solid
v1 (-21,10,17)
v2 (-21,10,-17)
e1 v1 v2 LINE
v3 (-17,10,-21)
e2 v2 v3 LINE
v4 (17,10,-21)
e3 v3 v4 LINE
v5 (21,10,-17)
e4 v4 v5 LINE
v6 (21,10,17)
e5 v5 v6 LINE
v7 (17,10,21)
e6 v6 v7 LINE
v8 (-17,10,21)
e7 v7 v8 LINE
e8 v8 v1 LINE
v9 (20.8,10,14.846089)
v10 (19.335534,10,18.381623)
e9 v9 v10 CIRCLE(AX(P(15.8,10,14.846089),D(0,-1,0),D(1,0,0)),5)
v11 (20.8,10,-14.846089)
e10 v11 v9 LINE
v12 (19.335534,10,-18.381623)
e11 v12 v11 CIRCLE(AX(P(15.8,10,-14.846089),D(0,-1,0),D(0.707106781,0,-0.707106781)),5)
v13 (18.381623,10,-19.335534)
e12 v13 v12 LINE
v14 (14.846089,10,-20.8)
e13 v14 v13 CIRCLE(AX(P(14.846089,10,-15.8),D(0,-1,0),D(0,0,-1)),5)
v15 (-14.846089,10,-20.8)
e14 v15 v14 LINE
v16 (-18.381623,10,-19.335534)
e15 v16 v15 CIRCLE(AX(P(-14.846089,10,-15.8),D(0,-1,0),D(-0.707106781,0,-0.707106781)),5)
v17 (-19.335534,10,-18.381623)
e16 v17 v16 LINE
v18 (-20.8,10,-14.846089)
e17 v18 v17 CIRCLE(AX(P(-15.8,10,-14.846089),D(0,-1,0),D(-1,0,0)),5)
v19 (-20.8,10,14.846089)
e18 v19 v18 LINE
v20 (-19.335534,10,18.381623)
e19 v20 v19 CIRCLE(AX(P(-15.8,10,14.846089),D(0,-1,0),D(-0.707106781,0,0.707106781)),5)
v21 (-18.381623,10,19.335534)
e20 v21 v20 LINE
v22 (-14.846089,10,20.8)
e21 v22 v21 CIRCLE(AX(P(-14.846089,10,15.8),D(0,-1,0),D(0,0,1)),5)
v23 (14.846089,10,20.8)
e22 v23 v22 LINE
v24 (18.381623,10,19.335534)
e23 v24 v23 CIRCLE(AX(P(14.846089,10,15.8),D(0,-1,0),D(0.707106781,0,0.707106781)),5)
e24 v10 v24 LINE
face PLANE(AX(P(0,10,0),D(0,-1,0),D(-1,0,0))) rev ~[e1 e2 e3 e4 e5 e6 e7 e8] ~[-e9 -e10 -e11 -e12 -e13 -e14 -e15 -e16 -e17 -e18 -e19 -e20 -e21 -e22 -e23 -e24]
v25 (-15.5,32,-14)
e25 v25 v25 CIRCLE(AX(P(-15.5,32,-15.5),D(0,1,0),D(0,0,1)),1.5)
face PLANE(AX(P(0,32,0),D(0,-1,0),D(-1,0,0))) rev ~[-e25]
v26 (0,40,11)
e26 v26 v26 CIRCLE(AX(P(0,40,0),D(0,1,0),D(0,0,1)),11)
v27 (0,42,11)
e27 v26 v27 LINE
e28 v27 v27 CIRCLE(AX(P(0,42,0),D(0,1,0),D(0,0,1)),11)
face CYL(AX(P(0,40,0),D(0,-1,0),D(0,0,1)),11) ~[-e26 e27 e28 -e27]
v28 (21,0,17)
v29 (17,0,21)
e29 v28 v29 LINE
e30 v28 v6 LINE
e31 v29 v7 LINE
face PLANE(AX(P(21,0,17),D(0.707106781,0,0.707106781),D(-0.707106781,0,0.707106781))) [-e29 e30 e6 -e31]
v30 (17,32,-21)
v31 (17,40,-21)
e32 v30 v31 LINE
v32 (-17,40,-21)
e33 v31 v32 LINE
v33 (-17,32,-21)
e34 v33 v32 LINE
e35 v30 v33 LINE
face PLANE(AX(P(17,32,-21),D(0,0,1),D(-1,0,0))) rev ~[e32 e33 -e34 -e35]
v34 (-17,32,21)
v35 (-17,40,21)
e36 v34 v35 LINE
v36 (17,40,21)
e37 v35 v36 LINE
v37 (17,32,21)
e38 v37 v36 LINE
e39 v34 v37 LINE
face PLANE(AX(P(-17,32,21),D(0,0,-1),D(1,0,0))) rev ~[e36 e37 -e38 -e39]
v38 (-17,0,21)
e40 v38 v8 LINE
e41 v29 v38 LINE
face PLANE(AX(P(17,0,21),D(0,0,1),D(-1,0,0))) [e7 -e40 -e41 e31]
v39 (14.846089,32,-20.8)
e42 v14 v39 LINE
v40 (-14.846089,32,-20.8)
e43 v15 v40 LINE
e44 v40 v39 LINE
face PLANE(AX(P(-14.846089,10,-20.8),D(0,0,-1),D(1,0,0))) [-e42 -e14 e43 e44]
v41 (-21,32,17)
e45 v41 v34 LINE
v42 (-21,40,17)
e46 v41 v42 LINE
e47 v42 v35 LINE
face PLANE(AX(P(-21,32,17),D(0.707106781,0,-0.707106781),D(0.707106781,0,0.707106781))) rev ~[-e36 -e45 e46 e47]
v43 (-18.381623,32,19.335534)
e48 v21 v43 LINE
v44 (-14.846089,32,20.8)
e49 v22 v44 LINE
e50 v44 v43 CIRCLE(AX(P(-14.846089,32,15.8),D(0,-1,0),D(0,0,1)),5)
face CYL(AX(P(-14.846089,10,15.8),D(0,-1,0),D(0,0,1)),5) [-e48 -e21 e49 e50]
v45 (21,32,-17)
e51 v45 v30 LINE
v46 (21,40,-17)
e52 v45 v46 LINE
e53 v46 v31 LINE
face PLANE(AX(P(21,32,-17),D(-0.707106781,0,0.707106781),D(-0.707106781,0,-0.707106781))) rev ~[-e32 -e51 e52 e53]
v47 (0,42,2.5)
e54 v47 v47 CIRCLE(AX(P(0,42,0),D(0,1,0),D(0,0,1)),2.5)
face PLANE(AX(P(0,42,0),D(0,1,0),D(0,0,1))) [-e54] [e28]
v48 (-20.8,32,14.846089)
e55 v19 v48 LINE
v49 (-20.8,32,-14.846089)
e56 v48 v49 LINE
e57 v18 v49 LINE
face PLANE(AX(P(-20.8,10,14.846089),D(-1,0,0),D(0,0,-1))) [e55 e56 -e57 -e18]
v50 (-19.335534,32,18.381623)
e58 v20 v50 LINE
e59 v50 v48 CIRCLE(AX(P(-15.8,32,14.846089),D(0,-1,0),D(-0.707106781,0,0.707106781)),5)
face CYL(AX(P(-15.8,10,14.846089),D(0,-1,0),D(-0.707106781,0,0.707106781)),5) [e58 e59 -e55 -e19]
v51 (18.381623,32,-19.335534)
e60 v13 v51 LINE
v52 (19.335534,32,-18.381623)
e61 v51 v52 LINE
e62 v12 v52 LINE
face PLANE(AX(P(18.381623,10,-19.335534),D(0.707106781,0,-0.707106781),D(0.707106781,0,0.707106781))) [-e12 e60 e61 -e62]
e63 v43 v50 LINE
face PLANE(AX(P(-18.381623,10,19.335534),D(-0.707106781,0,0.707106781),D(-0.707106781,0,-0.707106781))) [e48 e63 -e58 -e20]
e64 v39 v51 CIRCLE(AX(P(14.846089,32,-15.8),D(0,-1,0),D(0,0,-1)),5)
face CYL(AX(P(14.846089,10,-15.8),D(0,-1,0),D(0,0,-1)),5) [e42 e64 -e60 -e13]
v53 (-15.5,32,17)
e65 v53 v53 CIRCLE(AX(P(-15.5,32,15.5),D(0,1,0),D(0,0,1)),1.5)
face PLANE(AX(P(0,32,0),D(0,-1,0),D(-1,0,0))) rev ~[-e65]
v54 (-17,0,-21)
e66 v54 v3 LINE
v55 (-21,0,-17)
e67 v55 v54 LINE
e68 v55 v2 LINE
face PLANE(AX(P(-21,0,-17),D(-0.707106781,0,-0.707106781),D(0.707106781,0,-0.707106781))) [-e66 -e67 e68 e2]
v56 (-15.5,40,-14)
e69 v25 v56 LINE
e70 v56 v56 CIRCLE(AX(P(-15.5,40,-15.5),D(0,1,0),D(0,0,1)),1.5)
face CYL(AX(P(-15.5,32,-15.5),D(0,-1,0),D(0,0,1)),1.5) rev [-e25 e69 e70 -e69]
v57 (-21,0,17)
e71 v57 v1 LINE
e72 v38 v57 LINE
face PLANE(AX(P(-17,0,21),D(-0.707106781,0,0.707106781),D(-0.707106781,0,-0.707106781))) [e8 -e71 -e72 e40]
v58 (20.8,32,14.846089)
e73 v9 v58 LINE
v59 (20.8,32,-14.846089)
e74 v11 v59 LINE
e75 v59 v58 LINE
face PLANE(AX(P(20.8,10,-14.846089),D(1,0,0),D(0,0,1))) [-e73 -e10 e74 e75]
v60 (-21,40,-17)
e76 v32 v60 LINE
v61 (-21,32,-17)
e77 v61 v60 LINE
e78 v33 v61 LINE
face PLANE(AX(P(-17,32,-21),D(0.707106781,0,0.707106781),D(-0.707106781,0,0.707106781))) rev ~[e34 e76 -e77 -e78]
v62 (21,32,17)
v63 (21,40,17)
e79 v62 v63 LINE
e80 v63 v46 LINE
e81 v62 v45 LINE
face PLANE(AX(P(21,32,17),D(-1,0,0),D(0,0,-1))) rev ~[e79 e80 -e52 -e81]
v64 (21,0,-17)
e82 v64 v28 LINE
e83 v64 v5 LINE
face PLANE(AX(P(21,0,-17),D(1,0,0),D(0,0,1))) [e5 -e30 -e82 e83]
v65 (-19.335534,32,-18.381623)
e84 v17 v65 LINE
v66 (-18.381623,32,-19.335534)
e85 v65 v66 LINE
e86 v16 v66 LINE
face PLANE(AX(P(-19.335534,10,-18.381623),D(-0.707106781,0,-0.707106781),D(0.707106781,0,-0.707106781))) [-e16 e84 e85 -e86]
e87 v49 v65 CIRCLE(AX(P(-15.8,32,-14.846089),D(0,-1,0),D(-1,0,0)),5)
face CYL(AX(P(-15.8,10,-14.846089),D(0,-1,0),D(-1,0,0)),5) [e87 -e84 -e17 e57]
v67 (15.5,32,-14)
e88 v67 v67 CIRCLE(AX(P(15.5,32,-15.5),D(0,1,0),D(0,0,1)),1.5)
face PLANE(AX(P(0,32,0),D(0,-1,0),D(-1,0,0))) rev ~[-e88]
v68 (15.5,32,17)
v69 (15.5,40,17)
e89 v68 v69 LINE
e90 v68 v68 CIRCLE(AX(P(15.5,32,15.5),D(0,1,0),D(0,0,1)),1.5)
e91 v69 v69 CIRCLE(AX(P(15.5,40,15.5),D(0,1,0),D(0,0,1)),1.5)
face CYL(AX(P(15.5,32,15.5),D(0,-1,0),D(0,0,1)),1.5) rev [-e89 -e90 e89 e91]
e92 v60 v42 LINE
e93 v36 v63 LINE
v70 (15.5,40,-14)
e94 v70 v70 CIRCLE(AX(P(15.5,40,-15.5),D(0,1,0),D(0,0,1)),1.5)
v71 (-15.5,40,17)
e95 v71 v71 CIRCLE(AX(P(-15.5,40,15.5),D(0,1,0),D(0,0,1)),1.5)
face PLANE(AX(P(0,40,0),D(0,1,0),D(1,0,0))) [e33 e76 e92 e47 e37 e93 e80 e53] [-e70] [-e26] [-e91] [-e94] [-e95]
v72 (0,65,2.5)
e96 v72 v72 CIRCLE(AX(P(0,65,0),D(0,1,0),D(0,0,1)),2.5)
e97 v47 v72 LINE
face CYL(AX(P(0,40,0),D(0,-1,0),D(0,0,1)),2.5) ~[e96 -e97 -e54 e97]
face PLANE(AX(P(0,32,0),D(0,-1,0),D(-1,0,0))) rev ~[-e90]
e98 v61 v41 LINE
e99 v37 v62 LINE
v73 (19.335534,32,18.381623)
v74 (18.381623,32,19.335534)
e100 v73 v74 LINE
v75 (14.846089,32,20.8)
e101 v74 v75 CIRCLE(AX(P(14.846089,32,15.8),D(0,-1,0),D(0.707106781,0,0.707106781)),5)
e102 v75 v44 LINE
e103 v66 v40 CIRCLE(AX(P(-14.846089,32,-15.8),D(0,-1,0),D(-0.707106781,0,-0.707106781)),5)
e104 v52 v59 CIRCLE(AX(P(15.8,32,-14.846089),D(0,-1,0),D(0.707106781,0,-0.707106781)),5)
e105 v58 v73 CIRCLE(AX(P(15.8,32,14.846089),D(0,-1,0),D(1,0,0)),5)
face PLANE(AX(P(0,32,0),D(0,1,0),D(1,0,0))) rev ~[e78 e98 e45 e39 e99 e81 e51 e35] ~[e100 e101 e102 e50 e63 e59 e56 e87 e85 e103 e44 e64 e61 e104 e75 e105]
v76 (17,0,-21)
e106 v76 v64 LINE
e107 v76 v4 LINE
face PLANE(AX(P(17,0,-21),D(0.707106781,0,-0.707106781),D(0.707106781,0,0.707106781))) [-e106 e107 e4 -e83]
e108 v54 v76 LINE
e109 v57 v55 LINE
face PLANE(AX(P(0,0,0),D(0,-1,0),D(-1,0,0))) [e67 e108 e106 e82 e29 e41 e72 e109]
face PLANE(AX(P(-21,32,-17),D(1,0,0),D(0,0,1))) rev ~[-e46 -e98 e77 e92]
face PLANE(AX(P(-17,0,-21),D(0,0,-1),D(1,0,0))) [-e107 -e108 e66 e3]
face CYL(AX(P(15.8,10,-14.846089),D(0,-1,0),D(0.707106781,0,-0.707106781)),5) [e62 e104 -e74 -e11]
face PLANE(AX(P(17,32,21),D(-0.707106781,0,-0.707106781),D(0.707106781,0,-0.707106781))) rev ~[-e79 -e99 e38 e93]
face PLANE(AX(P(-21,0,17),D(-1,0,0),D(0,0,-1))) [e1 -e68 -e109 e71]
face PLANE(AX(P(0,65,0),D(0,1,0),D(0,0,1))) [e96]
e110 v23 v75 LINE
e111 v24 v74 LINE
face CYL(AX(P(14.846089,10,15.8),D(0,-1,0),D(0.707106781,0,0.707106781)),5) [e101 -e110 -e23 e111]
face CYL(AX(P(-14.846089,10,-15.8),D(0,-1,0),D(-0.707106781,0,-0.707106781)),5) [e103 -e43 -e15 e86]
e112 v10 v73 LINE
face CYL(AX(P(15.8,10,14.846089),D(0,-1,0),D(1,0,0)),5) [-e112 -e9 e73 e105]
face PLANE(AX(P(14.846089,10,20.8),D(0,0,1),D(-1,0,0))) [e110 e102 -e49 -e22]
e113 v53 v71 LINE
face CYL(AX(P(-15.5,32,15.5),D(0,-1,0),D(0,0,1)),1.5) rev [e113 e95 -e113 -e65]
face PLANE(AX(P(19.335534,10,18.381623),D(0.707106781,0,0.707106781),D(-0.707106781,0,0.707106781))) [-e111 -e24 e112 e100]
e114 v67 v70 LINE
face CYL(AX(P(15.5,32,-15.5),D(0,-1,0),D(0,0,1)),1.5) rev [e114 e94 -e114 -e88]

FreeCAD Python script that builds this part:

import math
import FreeCAD as App
import Part
import Sketcher
Q = App.Units.Quantity


def add_polygon(sketch, points):
    """Adds a closed chain of lines whose ends are joined by coincident constraints."""
    first, n = sketch.GeometryCount, len(points)
    for a, b in zip(points, points[1:] + points[:1]):
        sketch.addGeometry(Part.LineSegment(App.Vector(*a, 0), App.Vector(*b, 0)), False)
    for i in range(n):
        sketch.addConstraint(Sketcher.Constraint("Coincident", first + i, 2, first + (i + 1) % n, 1))

doc = App.newDocument("Part")
body = doc.addObject("PartDesign::Body", "Body")

# Sketch on XZ plane
sketch1 = body.newObject("Sketcher::SketchObject", "Sketch")
sketch1.AttachmentSupport = (doc.getObject("XZ_Plane"), [""])
sketch1.MapMode = "FlatFace"
add_polygon(sketch1, [(-17, -21), (-21, -17), (-21, 17), (-17, 21), (17, 21), (21, 17), (21, -17), (17, -21)])  # lines 0-7
sketch1.addConstraint(Sketcher.Constraint("Vertical", 1))
sketch1.addConstraint(Sketcher.Constraint("Horizontal", 3))
sketch1.addConstraint(Sketcher.Constraint("Vertical", 5))
sketch1.addConstraint(Sketcher.Constraint("Horizontal", 7))
sketch1.addConstraint(Sketcher.Constraint("Symmetric", 0, 2, 4, 2, -1, 1))
sketch1.addConstraint(Sketcher.Constraint("Symmetric", 2, 2, 6, 2, -1, 1))
sketch1.addConstraint(Sketcher.Constraint("Perpendicular", 0, 2))
sketch1.addConstraint(Sketcher.Constraint("Perpendicular", 2, 4))
sketch1.addConstraint(Sketcher.Constraint("Perpendicular", 4, 6))
sketch1.addConstraint(Sketcher.Constraint("Horizontal", 1, 2, 4, 2))
sketch1.addConstraint(Sketcher.Constraint("Vertical", 3, 2, 6, 2))
sketch1.addConstraint(Sketcher.Constraint("Equal", 7, 1))
sketch1.addConstraint(Sketcher.Constraint("DistanceX", 3, 1, 3, 2, Q("34 mm")))
sketch1.addConstraint(Sketcher.Constraint("DistanceX", 0, 2, -1, 1, Q("21 mm")))
pad1 = body.newObject("PartDesign::Pad", "Pad")
pad1.Profile = sketch1
pad1.Length = 10
pad1.Reversed = True

# Sketch on XZ plane
sketch2 = body.newObject("Sketcher::SketchObject", "Sketch001")
sketch2.AttachmentSupport = (doc.getObject("XZ_Plane"), [""])
sketch2.MapMode = "FlatFace"
sketch2.AttachmentOffset = App.Placement(App.Vector(0, 0, -10), App.Rotation())
sketch2.addGeometry(Part.LineSegment(App.Vector(-18.4, -19.3, 0), App.Vector(-19.3, -18.4, 0)), False)
sketch2.addGeometry(Part.ArcOfCircle(Part.Circle(App.Vector(-15.8, -14.8, 0), App.Vector(0, 0, 1), 5), math.radians(180), math.radians(225)), False)
sketch2.addGeometry(Part.LineSegment(App.Vector(-20.8, -14.8, 0), App.Vector(-20.8, 14.8, 0)), False)
sketch2.addGeometry(Part.ArcOfCircle(Part.Circle(App.Vector(-15.8, 14.8, 0), App.Vector(0, 0, 1), 5), math.radians(135), math.radians(180)), False)
sketch2.addGeometry(Part.LineSegment(App.Vector(-19.3, 18.4, 0), App.Vector(-18.4, 19.3, 0)), False)
sketch2.addGeometry(Part.ArcOfCircle(Part.Circle(App.Vector(-14.8, 15.8, 0), App.Vector(0, 0, 1), 5), math.radians(90), math.radians(135)), False)
sketch2.addGeometry(Part.LineSegment(App.Vector(-14.8, 20.8, 0), App.Vector(14.8, 20.8, 0)), False)
sketch2.addGeometry(Part.ArcOfCircle(Part.Circle(App.Vector(14.8, 15.8, 0), App.Vector(0, 0, 1), 5), math.radians(45), math.radians(90)), False)
sketch2.addGeometry(Part.LineSegment(App.Vector(18.4, 19.3, 0), App.Vector(19.3, 18.4, 0)), False)
sketch2.addGeometry(Part.ArcOfCircle(Part.Circle(App.Vector(15.8, 14.8, 0), App.Vector(0, 0, 1), 5), math.radians(0), math.radians(45)), False)
sketch2.addGeometry(Part.LineSegment(App.Vector(20.8, 14.8, 0), App.Vector(20.8, -14.8, 0)), False)
sketch2.addGeometry(Part.ArcOfCircle(Part.Circle(App.Vector(15.8, -14.8, 0), App.Vector(0, 0, 1), 5), math.radians(-45), math.radians(0)), False)
sketch2.addGeometry(Part.LineSegment(App.Vector(19.3, -18.4, 0), App.Vector(18.4, -19.3, 0)), False)
sketch2.addGeometry(Part.ArcOfCircle(Part.Circle(App.Vector(14.8, -15.8, 0), App.Vector(0, 0, 1), 5), math.radians(-90), math.radians(-45)), False)
sketch2.addGeometry(Part.LineSegment(App.Vector(14.8, -20.8, 0), App.Vector(-14.8, -20.8, 0)), False)
sketch2.addGeometry(Part.ArcOfCircle(Part.Circle(App.Vector(-14.8, -15.8, 0), App.Vector(0, 0, 1), 5), math.radians(-135), math.radians(-90)), False)
sketch2.addConstraint(Sketcher.Constraint("Tangent", 0, 2, 1, 2))
sketch2.addConstraint(Sketcher.Constraint("Tangent", 1, 1, 2, 1))
sketch2.addConstraint(Sketcher.Constraint("Tangent", 2, 2, 3, 2))
sketch2.addConstraint(Sketcher.Constraint("Tangent", 3, 1, 4, 1))
sketch2.addConstraint(Sketcher.Constraint("Tangent", 4, 2, 5, 2))
sketch2.addConstraint(Sketcher.Constraint("Tangent", 5, 1, 6, 1))
sketch2.addConstraint(Sketcher.Constraint("Tangent", 6, 2, 7, 2))
sketch2.addConstraint(Sketcher.Constraint("Tangent", 7, 1, 8, 1))
sketch2.addConstraint(Sketcher.Constraint("Tangent", 8, 2, 9, 2))
sketch2.addConstraint(Sketcher.Constraint("Tangent", 9, 1, 10, 1))
sketch2.addConstraint(Sketcher.Constraint("Tangent", 10, 2, 11, 2))
sketch2.addConstraint(Sketcher.Constraint("Tangent", 11, 1, 12, 1))
sketch2.addConstraint(Sketcher.Constraint("Tangent", 12, 2, 13, 2))
sketch2.addConstraint(Sketcher.Constraint("Tangent", 13, 1, 14, 1))
sketch2.addConstraint(Sketcher.Constraint("Tangent", 14, 2, 15, 2))
sketch2.addConstraint(Sketcher.Constraint("Tangent", 15, 1, 0, 1))
sketch2.addConstraint(Sketcher.Constraint("Vertical", 2))
sketch2.addConstraint(Sketcher.Constraint("Horizontal", 6))
sketch2.addConstraint(Sketcher.Constraint("Vertical", 10))
sketch2.addConstraint(Sketcher.Constraint("Horizontal", 14))
sketch2.addConstraint(Sketcher.Constraint("Equal", 1, 3))
sketch2.addConstraint(Sketcher.Constraint("Equal", 3, 5))
sketch2.addConstraint(Sketcher.Constraint("Equal", 5, 7))
sketch2.addConstraint(Sketcher.Constraint("Equal", 7, 9))
sketch2.addConstraint(Sketcher.Constraint("Equal", 9, 11))
sketch2.addConstraint(Sketcher.Constraint("Equal", 11, 13))
sketch2.addConstraint(Sketcher.Constraint("Equal", 13, 15))
sketch2.addConstraint(Sketcher.Constraint("Symmetric", 1, 3, 9, 3, -1, 1))
sketch2.addConstraint(Sketcher.Constraint("Symmetric", 5, 3, 13, 3, -1, 1))
sketch2.addConstraint(Sketcher.Constraint("Symmetric", 4, 2, 7, 1, -2))
sketch2.addConstraint(Sketcher.Constraint("Symmetric", 0, 2, 11, 1, -2))
sketch2.addConstraint(Sketcher.Constraint("Perpendicular", 0, 4))
sketch2.addConstraint(Sketcher.Constraint("Equal", 14, 2))
sketch2.addConstraint(Sketcher.Constraint("Radius", 1, Q("5 mm")))
sketch2.addConstraint(Sketcher.Constraint("DistanceX", 1, 3, -1, 1, Q("15.8 mm")))
sketch2.addConstraint(Sketcher.Constraint("DistanceX", 6, 1, 6, 2, Q("29.692179 mm")))
pad2 = body.newObject("PartDesign::Pad", "Pad001")
pad2.Profile = sketch2
pad2.Length = 22
pad2.Reversed = True

# Sketch on XZ plane
sketch3 = body.newObject("Sketcher::SketchObject", "Sketch002")
sketch3.AttachmentSupport = (doc.getObject("XZ_Plane"), [""])
sketch3.MapMode = "FlatFace"
sketch3.AttachmentOffset = App.Placement(App.Vector(0, 0, -32), App.Rotation())
add_polygon(sketch3, [(-17, -21), (-21, -17), (-21, 17), (-17, 21), (17, 21), (21, 17), (21, -17), (17, -21)])  # lines 0-7
sketch3.addGeometry(Part.Circle(App.Vector(-15.5, -15.5, 0), App.Vector(0, 0, 1), 1.5), False)  # 8
sketch3.addGeometry(Part.Circle(App.Vector(-15.5, 15.5, 0), App.Vector(0, 0, 1), 1.5), False)  # 9
sketch3.addGeometry(Part.Circle(App.Vector(15.5, -15.5, 0), App.Vector(0, 0, 1), 1.5), False)  # 10
sketch3.addGeometry(Part.Circle(App.Vector(15.5, 15.5, 0), App.Vector(0, 0, 1), 1.5), False)  # 11
sketch3.addConstraint(Sketcher.Constraint("Vertical", 1))
sketch3.addConstraint(Sketcher.Constraint("Horizontal", 3))
sketch3.addConstraint(Sketcher.Constraint("Vertical", 5))
sketch3.addConstraint(Sketcher.Constraint("Horizontal", 7))
sketch3.addConstraint(Sketcher.Constraint("Equal", 8, 9))
sketch3.addConstraint(Sketcher.Constraint("Equal", 9, 10))
sketch3.addConstraint(Sketcher.Constraint("Equal", 10, 11))
sketch3.addConstraint(Sketcher.Constraint("Symmetric", 9, 3, 10, 3, -1, 1))
sketch3.addConstraint(Sketcher.Constraint("Symmetric", 8, 3, 11, 3, -1, 1))
sketch3.addConstraint(Sketcher.Constraint("Symmetric", 0, 2, 4, 2, -1, 1))
sketch3.addConstraint(Sketcher.Constraint("Symmetric", 2, 2, 6, 2, -1, 1))
sketch3.addConstraint(Sketcher.Constraint("Symmetric", 8, 3, 10, 3, -2))
sketch3.addConstraint(Sketcher.Constraint("Perpendicular", 0, 2))
sketch3.addConstraint(Sketcher.Constraint("Perpendicular", 2, 4))
sketch3.addConstraint(Sketcher.Constraint("Perpendicular", 4, 6))
sketch3.addConstraint(Sketcher.Constraint("Horizontal", 1, 2, 4, 2))
sketch3.addConstraint(Sketcher.Constraint("Vertical", 3, 2, 6, 2))
sketch3.addConstraint(Sketcher.Constraint("Equal", 7, 1))
sketch3.addConstraint(Sketcher.Constraint("Diameter", 8, Q("3 mm")))
sketch3.addConstraint(Sketcher.Constraint("DistanceX", 3, 1, 3, 2, Q("34 mm")))
sketch3.addConstraint(Sketcher.Constraint("DistanceX", 0, 2, -1, 1, Q("21 mm")))
sketch3.addConstraint(Sketcher.Constraint("DistanceY", 8, 3, 9, 3, Q("31 mm")))
sketch3.addConstraint(Sketcher.Constraint("DistanceX", 8, 3, 10, 3, Q("31 mm")))
pad3 = body.newObject("PartDesign::Pad", "Pad002")
pad3.Profile = sketch3
pad3.Length = 8
pad3.Reversed = True

# Sketch on XZ plane
sketch4 = body.newObject("Sketcher::SketchObject", "Sketch003")
sketch4.AttachmentSupport = (doc.getObject("XZ_Plane"), [""])
sketch4.MapMode = "FlatFace"
sketch4.AttachmentOffset = App.Placement(App.Vector(0, 0, -40), App.Rotation())
sketch4.addGeometry(Part.Circle(App.Vector(0, 0, 0), App.Vector(0, 0, 1), 11), False)
sketch4.addGeometry(Part.Circle(App.Vector(0, 0, 0), App.Vector(0, 0, 1), 2.5), False)
sketch4.addConstraint(Sketcher.Constraint("Coincident", 0, 3, -1, 1))
sketch4.addConstraint(Sketcher.Constraint("Coincident", 1, 3, -1, 1))
sketch4.addConstraint(Sketcher.Constraint("Diameter", 0, Q("22 mm")))
sketch4.addConstraint(Sketcher.Constraint("Diameter", 1, Q("5 mm")))
pad4 = body.newObject("PartDesign::Pad", "Pad003")
pad4.Profile = sketch4
pad4.Length = 2
pad4.Reversed = True

# Sketch on XZ plane
sketch5 = body.newObject("Sketcher::SketchObject", "Sketch004")
sketch5.AttachmentSupport = (doc.getObject("XZ_Plane"), [""])
sketch5.MapMode = "FlatFace"
sketch5.AttachmentOffset = App.Placement(App.Vector(0, 0, -40), App.Rotation())
sketch5.addGeometry(Part.Circle(App.Vector(0, 0, 0), App.Vector(0, 0, 1), 2.5), False)
sketch5.addConstraint(Sketcher.Constraint("Coincident", 0, 3, -1, 1))
sketch5.addConstraint(Sketcher.Constraint("Diameter", 0, Q("5 mm")))
pad5 = body.newObject("PartDesign::Pad", "Pad004")
pad5.Profile = sketch5
pad5.Length = 25
pad5.Reversed = True

doc.recompute()
